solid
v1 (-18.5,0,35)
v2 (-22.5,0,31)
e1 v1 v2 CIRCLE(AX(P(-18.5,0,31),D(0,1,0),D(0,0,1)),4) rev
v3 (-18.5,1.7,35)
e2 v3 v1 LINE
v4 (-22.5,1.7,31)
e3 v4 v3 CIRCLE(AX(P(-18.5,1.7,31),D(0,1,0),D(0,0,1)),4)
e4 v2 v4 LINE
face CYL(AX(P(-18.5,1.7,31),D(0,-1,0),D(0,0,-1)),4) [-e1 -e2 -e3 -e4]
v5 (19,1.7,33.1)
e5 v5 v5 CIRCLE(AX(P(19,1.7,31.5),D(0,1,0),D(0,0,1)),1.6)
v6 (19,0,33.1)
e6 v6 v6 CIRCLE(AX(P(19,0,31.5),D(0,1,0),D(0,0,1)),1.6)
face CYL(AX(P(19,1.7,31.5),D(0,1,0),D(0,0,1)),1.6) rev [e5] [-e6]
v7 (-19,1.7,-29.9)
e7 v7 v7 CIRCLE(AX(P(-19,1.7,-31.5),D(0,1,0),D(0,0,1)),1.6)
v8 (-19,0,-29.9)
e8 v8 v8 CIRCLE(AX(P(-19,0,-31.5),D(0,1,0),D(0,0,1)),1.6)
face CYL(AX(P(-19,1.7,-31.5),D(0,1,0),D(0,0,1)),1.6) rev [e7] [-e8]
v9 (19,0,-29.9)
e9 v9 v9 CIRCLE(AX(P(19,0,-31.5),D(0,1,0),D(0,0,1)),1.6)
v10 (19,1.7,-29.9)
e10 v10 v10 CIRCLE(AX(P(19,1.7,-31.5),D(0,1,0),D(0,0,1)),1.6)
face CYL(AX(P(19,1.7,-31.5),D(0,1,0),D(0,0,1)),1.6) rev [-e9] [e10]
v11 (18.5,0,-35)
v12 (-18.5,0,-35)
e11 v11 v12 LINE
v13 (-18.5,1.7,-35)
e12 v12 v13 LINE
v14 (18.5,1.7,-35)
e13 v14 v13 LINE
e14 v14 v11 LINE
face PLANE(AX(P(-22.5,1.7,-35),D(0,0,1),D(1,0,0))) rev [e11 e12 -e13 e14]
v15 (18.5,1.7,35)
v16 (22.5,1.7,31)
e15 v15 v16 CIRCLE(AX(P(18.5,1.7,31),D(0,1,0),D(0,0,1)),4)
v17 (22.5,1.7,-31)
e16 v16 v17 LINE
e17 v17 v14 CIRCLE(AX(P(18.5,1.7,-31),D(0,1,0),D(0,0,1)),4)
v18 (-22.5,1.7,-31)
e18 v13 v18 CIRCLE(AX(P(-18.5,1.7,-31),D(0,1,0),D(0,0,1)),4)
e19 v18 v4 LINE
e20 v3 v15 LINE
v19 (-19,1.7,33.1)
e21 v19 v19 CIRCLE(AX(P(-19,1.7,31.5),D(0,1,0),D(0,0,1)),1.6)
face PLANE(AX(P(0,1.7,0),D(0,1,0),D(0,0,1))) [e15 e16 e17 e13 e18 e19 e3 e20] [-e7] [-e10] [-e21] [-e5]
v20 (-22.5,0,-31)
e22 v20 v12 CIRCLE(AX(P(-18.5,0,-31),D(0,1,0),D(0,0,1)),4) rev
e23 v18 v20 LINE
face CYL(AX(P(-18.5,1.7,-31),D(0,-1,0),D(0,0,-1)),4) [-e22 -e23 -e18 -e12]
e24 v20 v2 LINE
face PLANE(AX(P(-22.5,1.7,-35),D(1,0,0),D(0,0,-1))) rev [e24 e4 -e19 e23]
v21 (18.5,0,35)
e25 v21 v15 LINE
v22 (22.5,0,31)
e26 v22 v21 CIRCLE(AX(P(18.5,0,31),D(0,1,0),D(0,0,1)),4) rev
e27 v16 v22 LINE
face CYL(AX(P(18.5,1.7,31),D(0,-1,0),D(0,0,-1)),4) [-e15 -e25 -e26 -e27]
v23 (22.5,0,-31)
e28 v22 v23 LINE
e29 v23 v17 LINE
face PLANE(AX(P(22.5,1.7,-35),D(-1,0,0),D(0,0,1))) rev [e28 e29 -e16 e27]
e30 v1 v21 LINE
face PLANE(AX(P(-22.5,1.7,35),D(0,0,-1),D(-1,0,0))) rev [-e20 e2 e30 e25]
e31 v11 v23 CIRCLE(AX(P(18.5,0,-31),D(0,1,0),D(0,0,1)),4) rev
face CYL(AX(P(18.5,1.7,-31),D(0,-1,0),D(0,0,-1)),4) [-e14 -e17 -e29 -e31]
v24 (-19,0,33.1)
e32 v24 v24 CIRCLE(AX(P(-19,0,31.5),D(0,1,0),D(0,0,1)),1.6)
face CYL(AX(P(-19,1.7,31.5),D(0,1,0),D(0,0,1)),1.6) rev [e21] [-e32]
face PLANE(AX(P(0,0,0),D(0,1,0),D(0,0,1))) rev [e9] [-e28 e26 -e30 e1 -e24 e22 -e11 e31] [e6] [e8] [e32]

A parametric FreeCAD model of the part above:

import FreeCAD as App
import Part
import Sketcher

V = App.Vector


def edges_at(feature, points):
    """Names of the edges that pass closest to the given points."""
    edges = feature.Shape.Edges
    near = lambda p: min(range(len(edges)), key=lambda i: edges[i].distToShape(Part.Vertex(*p))[0])
    return sorted({f"Edge{near(p) + 1}" for p in points})

doc = App.newDocument("Part")
body = doc.addObject("PartDesign::Body", "Body")

sketch1 = body.newObject("Sketcher::SketchObject", "Sketch")
sketch1.AttachmentSupport = (doc.getObject("XZ_Plane"), [""])
sketch1.MapMode = "FlatFace"
sketch1.addGeometry([
    Part.LineSegment(V(-22.5, -35, 0), V(-22.5, 35, 0)),
    Part.LineSegment(V(-22.5, 35, 0), V(22.5, 35, 0)),
    Part.LineSegment(V(22.5, 35, 0), V(22.5, -35, 0)),
    Part.LineSegment(V(22.5, -35, 0), V(-22.5, -35, 0)),
], False)
sketch1.addConstraint([
    Sketcher.Constraint("Coincident", 0, 2, 1, 1),
    Sketcher.Constraint("Coincident", 1, 2, 2, 1),
    Sketcher.Constraint("Coincident", 2, 2, 3, 1),
    Sketcher.Constraint("Coincident", 3, 2, 0, 1),
    Sketcher.Constraint("Vertical", 0),
    Sketcher.Constraint("Horizontal", 1),
    Sketcher.Constraint("Vertical", 2),
    Sketcher.Constraint("Horizontal", 3),
    Sketcher.Constraint("Symmetric", 0, 2, 2, 2, -1, 1),
    Sketcher.Constraint("DistanceX", 1, 1, 1, 2, 45.0),
    Sketcher.Constraint("DistanceY", 0, 1, 0, 2, 70.0),
])
pad1 = body.newObject("PartDesign::Pad", "Pad")
pad1.Profile = sketch1
pad1.Length = 1.7
pad1.Reversed = True

sketch2 = body.newObject("Sketcher::SketchObject", "Sketch001")
sketch2.AttachmentSupport = (doc.getObject("XZ_Plane"), [""])
sketch2.MapMode = "FlatFace"
sketch2.AttachmentOffset = App.Placement(V(0, 0, -1.7), App.Rotation())
sketch2.addGeometry(Part.Circle(V(-19, -31.5, 0), V(0, 0, 1), 1.6), False)
sketch2.addConstraint([
    Sketcher.Constraint("Diameter", 0, 3.2),
    Sketcher.Constraint("DistanceX", 0, 3, -1, 1, 19.0),
    Sketcher.Constraint("DistanceY", 0, 3, -1, 1, 31.5),
])
doc.recompute()
hole = body.newObject("PartDesign::Hole", "Hole")
hole.Profile = sketch2
hole.ThreadType = "None"
hole.Diameter = 3.2
hole.DepthType = "ThroughAll"
hole.Reversed = True
doc.recompute()

mirrored = body.newObject("PartDesign::Mirrored", "Mirrored")
mirrored.Originals = [hole]
mirrored.MirrorPlane = (doc.getObject("YZ_Plane"), [""])
body.Tip = mirrored
doc.recompute()

mirrored2 = body.newObject("PartDesign::Mirrored", "Mirrored001")
mirrored2.Originals = [hole]
mirrored2.MirrorPlane = (doc.getObject("XY_Plane"), [""])
body.Tip = mirrored2

sketch3 = body.newObject("Sketcher::SketchObject", "Sketch002")
sketch3.AttachmentSupport = (doc.getObject("XZ_Plane"), [""])
sketch3.MapMode = "FlatFace"
sketch3.AttachmentOffset = App.Placement(V(0, 0, -1.7), App.Rotation())
sketch3.addGeometry(Part.Circle(V(19, 31.5, 0), V(0, 0, 1), 1.6), False)
sketch3.addConstraint([
    Sketcher.Constraint("Diameter", 0, 3.2),
    Sketcher.Constraint("DistanceX", -1, 1, 0, 3, 19.0),
    Sketcher.Constraint("DistanceY", -1, 1, 0, 3, 31.5),
])
doc.recompute()
hole2 = body.newObject("PartDesign::Hole", "Hole001")
hole2.Profile = sketch3
hole2.ThreadType = "None"
hole2.Diameter = 3.2
hole2.DepthType = "ThroughAll"
hole2.Reversed = True
doc.recompute()

fillet = body.newObject("PartDesign::Fillet", "Fillet")
fillet.Base = (hole2, edges_at(hole2, [
    (22.5, 0.85, 35),
    (-22.5, 0.85, 35),
    (-22.5, 0.85, -35),
    (22.5, 0.85, -35),
]))
fillet.Radius = 4

doc.recompute()
